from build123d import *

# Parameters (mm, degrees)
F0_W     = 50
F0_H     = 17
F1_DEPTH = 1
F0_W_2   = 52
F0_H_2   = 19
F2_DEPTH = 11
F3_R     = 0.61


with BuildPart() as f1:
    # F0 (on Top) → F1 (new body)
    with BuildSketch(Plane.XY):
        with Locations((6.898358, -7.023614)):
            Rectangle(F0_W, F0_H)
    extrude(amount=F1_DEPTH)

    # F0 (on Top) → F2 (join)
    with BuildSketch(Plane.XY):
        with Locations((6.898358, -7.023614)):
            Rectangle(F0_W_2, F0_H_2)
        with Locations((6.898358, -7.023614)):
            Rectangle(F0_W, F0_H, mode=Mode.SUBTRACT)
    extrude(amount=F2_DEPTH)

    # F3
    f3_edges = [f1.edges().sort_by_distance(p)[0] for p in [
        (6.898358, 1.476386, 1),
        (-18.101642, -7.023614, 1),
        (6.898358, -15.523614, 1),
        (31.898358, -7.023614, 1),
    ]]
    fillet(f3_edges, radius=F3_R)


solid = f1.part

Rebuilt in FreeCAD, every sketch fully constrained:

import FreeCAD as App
import Part
import Sketcher

V = App.Vector


def edges_at(feature, points):
    """Names of the edges that pass closest to the given points."""
    edges = feature.Shape.Edges
    near = lambda p: min(range(len(edges)), key=lambda i: edges[i].distToShape(Part.Vertex(*p))[0])
    return sorted({f"Edge{near(p) + 1}" for p in points})

doc = App.newDocument("Part")
body = doc.addObject("PartDesign::Body", "Body")

sketch1 = body.newObject("Sketcher::SketchObject", "Sketch")
sketch1.AttachmentSupport = (doc.getObject("XY_Plane"), [""])
sketch1.MapMode = "FlatFace"
sketch1.addGeometry([
    Part.LineSegment(V(-18.101642, 1.476386, 0), V(-18.101642, -15.523614, 0)),
    Part.LineSegment(V(-18.101642, -15.523614, 0), V(31.898358, -15.523614, 0)),
    Part.LineSegment(V(31.898358, -15.523614, 0), V(31.898358, 1.476386, 0)),
    Part.LineSegment(V(31.898358, 1.476386, 0), V(-18.101642, 1.476386, 0)),
], False)
sketch1.addConstraint([
    Sketcher.Constraint("Coincident", 0, 2, 1, 1),
    Sketcher.Constraint("Coincident", 1, 2, 2, 1),
    Sketcher.Constraint("Coincident", 2, 2, 3, 1),
    Sketcher.Constraint("Coincident", 3, 2, 0, 1),
    Sketcher.Constraint("Vertical", 0),
    Sketcher.Constraint("Horizontal", 1),
    Sketcher.Constraint("Vertical", 2),
    Sketcher.Constraint("Horizontal", 3),
    Sketcher.Constraint("DistanceX", 1, 1, 1, 2, 50.0),
    Sketcher.Constraint("DistanceY", 0, 2, 0, 1, 17.0),
    Sketcher.Constraint("DistanceX", 0, 2, -1, 1, 18.101642),
    Sketcher.Constraint("DistanceY", 0, 2, -1, 1, 15.523614),
])
pad1 = body.newObject("PartDesign::Pad", "Pad")
pad1.Profile = sketch1
pad1.Length = 1

sketch2 = body.newObject("Sketcher::SketchObject", "Sketch001")
sketch2.AttachmentSupport = (doc.getObject("XY_Plane"), [""])
sketch2.MapMode = "FlatFace"
sketch2.addGeometry([
    Part.LineSegment(V(-19.101642, 2.476386, 0), V(-19.101642, -16.523614, 0)),
    Part.LineSegment(V(-19.101642, -16.523614, 0), V(32.898358, -16.523614, 0)),
    Part.LineSegment(V(32.898358, -16.523614, 0), V(32.898358, 2.476386, 0)),
    Part.LineSegment(V(32.898358, 2.476386, 0), V(-19.101642, 2.476386, 0)),
    Part.LineSegment(V(31.898358, -15.523614, 0), V(-18.101642, -15.523614, 0)),
    Part.LineSegment(V(-18.101642, -15.523614, 0), V(-18.101642, 1.476386, 0)),
    Part.LineSegment(V(-18.101642, 1.476386, 0), V(31.898358, 1.476386, 0)),
    Part.LineSegment(V(31.898358, 1.476386, 0), V(31.898358, -15.523614, 0)),
], False)
sketch2.addConstraint([
    Sketcher.Constraint("Coincident", 0, 2, 1, 1),
    Sketcher.Constraint("Coincident", 1, 2, 2, 1),
    Sketcher.Constraint("Coincident", 2, 2, 3, 1),
    Sketcher.Constraint("Coincident", 3, 2, 0, 1),
    Sketcher.Constraint("Coincident", 4, 2, 5, 1),
    Sketcher.Constraint("Coincident", 5, 2, 6, 1),
    Sketcher.Constraint("Coincident", 6, 2, 7, 1),
    Sketcher.Constraint("Coincident", 7, 2, 4, 1),
    Sketcher.Constraint("Vertical", 0),
    Sketcher.Constraint("Horizontal", 1),
    Sketcher.Constraint("Vertical", 2),
    Sketcher.Constraint("Horizontal", 3),
    Sketcher.Constraint("Horizontal", 4),
    Sketcher.Constraint("Vertical", 5),
    Sketcher.Constraint("Horizontal", 6),
    Sketcher.Constraint("Vertical", 7),
    Sketcher.Constraint("DistanceX", 1, 1, 1, 2, 52.0),
    Sketcher.Constraint("DistanceX", 4, 2, 4, 1, 50.0),
    Sketcher.Constraint("DistanceY", 0, 2, 0, 1, 19.0),
    Sketcher.Constraint("DistanceY", 5, 1, 5, 2, 17.0),
    Sketcher.Constraint("DistanceX", 0, 2, 4, 2, 1.0),
    Sketcher.Constraint("DistanceY", 0, 2, 4, 2, 1.0),
    Sketcher.Constraint("DistanceX", 0, 2, -1, 1, 19.101642),
    Sketcher.Constraint("DistanceY", 0, 2, -1, 1, 16.523614),
])
pad2 = body.newObject("PartDesign::Pad", "Pad001")
pad2.Profile = sketch2
pad2.Length = 11
doc.recompute()

fillet = body.newObject("PartDesign::Fillet", "Fillet")
fillet.Base = (pad2, edges_at(pad2, [
    (6.898, 1.476, 1),
    (-18.102, -7.024, 1),
    (6.898, -15.524, 1),
    (31.898, -7.024, 1),
]))
fillet.Radius = 0.61

doc.recompute()
